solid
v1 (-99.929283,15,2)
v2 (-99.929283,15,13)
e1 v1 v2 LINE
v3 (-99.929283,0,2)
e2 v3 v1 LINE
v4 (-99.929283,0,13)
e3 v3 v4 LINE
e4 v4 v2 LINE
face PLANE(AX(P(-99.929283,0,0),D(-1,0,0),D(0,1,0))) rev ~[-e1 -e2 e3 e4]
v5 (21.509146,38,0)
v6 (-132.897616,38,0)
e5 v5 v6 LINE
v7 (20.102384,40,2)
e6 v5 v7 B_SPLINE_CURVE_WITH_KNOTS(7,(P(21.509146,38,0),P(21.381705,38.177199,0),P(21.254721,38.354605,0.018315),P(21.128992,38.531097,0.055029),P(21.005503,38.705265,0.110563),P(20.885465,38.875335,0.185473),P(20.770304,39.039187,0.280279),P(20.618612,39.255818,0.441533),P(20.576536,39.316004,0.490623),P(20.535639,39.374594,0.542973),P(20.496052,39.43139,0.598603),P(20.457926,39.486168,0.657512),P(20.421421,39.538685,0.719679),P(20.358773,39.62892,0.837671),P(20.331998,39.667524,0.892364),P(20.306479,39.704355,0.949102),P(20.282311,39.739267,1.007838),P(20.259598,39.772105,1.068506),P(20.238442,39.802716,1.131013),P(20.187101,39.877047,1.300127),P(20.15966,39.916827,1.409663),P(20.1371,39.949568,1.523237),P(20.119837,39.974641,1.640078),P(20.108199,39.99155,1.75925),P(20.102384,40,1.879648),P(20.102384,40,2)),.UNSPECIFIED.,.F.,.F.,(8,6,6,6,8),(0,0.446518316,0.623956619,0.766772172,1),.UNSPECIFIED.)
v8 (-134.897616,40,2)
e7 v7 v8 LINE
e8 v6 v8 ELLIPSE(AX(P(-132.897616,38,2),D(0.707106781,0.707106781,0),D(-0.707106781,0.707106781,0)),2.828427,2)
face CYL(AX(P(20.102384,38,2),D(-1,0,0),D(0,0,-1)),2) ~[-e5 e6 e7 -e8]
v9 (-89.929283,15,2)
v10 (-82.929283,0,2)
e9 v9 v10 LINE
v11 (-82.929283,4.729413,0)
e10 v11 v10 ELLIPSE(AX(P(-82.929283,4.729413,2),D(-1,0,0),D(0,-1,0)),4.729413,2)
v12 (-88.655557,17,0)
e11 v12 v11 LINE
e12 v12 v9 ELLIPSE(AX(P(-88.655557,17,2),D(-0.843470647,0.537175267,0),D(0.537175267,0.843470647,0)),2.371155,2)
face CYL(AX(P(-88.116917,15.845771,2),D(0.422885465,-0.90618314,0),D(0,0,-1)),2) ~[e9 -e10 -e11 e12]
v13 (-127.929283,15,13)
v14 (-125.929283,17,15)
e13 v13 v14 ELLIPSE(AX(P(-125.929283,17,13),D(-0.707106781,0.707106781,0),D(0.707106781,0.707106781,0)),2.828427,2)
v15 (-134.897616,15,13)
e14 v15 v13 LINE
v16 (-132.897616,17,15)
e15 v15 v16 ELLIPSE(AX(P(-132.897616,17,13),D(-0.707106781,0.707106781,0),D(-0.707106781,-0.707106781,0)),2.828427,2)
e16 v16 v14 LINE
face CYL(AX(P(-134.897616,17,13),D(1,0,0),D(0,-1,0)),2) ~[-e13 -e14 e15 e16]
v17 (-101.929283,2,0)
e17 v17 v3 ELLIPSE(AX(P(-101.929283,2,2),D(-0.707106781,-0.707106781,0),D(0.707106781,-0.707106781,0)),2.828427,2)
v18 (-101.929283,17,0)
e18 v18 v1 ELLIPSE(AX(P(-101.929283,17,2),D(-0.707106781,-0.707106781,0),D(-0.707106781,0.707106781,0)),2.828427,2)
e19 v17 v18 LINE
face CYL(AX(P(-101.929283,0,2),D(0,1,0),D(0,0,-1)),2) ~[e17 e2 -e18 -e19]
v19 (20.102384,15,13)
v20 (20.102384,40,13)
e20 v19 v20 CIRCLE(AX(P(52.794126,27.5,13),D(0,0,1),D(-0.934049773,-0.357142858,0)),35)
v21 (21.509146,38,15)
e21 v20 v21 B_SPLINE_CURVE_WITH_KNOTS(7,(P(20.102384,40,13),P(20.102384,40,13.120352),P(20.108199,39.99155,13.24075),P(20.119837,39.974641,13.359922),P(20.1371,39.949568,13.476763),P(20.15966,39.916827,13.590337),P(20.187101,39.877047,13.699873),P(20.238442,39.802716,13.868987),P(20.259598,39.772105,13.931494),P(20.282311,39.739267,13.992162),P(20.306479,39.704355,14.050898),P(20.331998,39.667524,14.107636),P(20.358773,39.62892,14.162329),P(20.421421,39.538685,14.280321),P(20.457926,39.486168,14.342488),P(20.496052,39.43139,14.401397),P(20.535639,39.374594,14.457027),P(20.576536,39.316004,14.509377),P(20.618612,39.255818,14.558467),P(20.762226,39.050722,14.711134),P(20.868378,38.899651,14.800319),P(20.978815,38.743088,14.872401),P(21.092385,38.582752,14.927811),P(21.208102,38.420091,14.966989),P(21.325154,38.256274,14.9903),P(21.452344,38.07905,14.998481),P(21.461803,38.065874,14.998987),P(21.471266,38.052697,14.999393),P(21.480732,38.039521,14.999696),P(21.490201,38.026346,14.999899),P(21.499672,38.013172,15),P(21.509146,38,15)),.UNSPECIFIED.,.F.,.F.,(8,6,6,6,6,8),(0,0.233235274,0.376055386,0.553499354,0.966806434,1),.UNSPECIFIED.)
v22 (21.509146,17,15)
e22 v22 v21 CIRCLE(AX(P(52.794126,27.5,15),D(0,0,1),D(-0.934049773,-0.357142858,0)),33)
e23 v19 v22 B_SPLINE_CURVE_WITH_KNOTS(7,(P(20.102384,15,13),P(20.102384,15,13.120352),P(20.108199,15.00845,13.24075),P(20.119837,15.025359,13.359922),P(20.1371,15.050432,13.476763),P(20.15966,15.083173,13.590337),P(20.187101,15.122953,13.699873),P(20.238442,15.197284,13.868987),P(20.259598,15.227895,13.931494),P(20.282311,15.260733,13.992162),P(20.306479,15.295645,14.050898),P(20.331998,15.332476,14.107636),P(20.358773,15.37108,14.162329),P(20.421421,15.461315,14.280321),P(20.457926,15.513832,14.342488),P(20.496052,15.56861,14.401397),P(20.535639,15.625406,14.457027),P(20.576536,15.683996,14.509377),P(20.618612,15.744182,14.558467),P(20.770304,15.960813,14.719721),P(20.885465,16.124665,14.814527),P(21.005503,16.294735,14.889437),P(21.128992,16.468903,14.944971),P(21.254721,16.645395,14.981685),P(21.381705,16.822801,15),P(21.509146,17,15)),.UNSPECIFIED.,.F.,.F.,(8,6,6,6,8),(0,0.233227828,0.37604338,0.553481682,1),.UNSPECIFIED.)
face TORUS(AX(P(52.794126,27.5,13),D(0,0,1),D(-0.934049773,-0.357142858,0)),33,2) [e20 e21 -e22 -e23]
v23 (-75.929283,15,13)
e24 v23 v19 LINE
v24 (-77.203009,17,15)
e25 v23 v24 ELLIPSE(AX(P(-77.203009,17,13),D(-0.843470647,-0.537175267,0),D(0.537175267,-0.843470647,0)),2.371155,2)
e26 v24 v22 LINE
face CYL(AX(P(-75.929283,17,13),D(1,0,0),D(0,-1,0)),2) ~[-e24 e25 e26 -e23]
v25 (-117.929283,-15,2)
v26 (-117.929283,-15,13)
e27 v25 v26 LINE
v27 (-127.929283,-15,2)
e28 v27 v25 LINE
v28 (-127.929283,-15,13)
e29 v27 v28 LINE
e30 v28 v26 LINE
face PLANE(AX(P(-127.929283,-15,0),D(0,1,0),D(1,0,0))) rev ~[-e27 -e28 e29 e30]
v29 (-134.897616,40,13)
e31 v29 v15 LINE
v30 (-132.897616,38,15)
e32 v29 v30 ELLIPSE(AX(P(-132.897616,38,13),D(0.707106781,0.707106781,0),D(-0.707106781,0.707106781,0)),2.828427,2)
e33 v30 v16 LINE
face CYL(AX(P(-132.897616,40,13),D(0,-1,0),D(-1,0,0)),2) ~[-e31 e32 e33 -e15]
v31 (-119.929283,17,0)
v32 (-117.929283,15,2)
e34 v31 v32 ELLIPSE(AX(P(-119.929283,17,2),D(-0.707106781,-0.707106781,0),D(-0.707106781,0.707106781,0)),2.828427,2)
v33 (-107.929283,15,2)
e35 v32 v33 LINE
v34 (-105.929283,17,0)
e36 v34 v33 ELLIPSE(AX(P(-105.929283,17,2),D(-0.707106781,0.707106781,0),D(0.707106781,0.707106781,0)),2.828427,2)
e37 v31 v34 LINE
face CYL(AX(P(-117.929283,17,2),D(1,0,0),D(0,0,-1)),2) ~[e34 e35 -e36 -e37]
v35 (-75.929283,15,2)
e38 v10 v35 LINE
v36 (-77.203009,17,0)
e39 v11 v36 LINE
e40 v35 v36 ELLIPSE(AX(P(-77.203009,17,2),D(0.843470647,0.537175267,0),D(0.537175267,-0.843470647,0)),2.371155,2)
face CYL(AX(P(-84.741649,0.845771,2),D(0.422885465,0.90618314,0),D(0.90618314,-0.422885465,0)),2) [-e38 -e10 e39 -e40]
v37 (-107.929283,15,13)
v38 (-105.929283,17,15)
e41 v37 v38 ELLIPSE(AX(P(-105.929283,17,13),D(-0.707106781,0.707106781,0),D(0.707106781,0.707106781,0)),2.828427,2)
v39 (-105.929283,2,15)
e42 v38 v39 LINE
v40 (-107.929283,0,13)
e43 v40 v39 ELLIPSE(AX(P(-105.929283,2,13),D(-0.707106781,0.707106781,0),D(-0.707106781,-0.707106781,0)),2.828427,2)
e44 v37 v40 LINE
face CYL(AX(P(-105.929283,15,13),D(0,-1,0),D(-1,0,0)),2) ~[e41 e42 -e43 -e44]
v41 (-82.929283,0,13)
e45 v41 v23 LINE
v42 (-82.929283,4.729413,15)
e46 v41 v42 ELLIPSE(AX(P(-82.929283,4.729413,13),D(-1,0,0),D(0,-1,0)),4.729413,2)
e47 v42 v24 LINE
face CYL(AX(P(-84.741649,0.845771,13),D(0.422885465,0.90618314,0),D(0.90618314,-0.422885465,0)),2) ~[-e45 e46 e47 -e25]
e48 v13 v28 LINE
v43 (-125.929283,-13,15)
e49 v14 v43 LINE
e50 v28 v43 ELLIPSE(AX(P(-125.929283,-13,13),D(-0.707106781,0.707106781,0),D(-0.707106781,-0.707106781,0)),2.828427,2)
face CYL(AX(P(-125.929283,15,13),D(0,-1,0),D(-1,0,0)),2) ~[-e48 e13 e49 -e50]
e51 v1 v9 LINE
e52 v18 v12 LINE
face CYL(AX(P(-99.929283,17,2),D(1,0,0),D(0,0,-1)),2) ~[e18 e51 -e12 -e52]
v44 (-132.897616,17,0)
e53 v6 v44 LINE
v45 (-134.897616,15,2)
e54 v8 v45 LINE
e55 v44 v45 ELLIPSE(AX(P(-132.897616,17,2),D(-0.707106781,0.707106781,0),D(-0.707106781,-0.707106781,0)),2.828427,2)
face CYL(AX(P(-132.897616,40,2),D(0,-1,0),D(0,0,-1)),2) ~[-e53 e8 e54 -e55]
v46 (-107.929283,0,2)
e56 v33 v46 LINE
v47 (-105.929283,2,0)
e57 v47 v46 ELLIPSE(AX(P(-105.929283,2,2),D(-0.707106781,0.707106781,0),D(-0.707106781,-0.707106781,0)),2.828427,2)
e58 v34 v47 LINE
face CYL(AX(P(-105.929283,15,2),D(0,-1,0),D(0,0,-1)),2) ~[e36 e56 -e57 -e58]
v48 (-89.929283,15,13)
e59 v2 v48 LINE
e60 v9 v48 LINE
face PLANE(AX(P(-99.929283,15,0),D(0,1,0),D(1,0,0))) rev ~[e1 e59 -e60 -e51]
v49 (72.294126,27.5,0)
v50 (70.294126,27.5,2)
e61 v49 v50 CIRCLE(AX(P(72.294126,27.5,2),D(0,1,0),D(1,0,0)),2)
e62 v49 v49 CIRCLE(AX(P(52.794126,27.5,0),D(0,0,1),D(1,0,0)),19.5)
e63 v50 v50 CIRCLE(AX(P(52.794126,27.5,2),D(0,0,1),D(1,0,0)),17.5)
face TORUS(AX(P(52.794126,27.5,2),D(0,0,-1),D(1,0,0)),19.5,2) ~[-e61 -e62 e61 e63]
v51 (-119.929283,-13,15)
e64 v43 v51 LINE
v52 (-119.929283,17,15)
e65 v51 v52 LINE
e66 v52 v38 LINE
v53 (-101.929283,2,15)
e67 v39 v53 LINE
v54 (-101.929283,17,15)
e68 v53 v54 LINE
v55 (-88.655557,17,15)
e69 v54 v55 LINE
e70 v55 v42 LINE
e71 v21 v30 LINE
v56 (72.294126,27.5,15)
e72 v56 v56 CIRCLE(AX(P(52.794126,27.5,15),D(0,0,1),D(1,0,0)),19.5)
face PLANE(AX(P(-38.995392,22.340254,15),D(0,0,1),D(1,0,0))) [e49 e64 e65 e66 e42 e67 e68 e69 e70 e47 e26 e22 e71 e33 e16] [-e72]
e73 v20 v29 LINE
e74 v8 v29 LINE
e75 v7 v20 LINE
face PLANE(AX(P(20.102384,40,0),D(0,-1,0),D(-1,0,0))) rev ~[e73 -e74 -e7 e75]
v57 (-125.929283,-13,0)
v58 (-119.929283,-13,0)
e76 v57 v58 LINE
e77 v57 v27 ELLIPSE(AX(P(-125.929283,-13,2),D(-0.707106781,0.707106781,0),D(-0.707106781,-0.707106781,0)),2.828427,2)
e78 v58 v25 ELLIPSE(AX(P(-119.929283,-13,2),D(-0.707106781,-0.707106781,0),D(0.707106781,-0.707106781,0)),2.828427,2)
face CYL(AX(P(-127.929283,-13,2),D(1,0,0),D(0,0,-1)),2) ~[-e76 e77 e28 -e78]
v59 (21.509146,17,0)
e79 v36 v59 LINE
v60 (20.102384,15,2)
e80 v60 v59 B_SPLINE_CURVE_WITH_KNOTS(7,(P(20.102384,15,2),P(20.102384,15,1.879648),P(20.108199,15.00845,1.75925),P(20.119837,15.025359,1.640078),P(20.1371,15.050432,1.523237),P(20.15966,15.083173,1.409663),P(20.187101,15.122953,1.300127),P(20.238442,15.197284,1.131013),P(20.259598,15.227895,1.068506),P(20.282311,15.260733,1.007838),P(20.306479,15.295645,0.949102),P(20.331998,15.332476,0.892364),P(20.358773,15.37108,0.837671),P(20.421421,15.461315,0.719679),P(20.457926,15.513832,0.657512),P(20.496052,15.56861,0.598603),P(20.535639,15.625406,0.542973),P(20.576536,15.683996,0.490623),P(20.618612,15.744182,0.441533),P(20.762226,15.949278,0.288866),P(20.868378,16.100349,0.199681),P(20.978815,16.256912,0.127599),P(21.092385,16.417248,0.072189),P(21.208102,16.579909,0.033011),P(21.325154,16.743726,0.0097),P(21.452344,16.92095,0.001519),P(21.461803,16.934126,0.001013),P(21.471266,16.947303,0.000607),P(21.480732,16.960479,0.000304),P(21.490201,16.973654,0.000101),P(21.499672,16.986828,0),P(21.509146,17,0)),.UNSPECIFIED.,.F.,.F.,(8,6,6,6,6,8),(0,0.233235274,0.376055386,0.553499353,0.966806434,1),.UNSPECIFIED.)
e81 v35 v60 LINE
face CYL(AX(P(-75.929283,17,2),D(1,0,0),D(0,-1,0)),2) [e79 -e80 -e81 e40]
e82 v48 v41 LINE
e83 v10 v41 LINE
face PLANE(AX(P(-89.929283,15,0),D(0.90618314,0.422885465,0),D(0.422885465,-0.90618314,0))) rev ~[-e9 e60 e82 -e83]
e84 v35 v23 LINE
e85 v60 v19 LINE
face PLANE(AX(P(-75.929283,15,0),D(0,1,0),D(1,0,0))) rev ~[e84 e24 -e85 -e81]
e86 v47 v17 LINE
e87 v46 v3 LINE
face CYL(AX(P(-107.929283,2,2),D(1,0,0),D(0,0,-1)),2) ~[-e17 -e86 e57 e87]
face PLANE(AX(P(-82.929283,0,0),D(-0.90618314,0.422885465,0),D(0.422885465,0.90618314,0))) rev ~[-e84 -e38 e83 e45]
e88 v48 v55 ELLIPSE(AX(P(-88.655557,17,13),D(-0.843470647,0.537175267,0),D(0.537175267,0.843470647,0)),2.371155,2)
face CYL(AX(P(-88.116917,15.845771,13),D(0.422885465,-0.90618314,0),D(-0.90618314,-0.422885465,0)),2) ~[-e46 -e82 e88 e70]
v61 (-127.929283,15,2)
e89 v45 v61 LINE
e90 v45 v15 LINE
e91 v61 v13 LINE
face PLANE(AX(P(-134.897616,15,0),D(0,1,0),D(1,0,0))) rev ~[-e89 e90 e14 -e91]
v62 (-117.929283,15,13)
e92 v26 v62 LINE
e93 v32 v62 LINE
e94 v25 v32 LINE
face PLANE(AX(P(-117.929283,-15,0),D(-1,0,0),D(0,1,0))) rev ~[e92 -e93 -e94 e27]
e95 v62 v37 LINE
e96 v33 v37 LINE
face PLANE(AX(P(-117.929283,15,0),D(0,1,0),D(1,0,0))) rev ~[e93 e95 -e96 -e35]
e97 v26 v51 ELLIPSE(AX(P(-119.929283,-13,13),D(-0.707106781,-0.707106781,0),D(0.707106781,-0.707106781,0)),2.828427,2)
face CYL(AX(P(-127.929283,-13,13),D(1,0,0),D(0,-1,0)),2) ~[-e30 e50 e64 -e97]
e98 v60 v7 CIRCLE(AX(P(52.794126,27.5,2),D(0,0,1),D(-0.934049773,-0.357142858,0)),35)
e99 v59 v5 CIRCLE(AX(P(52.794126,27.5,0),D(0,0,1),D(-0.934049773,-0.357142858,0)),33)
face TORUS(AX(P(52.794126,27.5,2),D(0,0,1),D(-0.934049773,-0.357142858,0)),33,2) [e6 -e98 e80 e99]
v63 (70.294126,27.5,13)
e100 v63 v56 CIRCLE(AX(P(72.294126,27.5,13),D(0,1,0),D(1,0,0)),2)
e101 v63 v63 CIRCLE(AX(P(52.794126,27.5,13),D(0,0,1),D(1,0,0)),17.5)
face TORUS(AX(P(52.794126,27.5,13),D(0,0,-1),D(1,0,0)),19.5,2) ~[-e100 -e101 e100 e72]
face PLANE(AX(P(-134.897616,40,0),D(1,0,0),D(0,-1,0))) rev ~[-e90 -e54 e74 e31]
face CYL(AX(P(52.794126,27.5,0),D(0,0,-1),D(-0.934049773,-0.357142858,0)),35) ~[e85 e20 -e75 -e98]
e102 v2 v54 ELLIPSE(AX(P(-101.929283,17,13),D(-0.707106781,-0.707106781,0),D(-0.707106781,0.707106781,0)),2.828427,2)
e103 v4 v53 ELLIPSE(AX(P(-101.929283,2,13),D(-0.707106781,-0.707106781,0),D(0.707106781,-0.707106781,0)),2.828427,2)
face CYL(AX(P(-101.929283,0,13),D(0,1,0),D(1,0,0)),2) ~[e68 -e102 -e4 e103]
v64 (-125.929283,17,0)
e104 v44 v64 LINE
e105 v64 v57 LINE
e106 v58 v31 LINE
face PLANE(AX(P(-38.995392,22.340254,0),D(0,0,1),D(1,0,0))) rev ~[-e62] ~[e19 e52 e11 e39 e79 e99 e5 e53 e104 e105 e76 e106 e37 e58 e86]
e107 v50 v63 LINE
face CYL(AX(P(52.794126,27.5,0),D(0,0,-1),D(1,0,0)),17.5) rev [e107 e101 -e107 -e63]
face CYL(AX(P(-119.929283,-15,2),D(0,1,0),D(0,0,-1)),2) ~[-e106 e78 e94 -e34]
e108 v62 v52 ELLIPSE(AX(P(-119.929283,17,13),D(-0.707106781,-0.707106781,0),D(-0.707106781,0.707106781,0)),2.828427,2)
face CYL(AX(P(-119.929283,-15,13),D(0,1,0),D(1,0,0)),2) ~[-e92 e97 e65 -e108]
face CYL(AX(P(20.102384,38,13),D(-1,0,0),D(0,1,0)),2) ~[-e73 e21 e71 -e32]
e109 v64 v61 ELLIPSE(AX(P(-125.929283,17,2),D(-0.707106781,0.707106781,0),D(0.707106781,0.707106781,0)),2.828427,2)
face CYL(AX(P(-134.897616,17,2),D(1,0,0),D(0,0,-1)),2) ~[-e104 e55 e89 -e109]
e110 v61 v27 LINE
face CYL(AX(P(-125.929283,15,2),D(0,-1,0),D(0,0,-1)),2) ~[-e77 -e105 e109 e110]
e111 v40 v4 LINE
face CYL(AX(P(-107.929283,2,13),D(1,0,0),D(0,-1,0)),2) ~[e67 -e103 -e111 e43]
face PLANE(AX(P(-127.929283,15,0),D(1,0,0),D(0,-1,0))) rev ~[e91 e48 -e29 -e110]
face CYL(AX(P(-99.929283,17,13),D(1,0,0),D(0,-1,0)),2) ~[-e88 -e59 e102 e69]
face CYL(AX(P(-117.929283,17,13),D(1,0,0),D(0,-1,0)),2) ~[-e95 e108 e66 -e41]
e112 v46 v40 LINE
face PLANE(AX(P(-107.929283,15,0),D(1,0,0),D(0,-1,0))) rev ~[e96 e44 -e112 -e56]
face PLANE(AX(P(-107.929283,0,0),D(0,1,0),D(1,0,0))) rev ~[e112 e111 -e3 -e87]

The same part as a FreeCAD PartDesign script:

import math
import FreeCAD as App
import Part
import Sketcher
from FreeCAD import Vector
Q = App.Units.Quantity


def edges_at(feature, points):
    """Names of the edges that pass closest to the given points."""
    edges = feature.Shape.Edges
    near = lambda p: min(range(len(edges)), key=lambda i: edges[i].distToShape(Part.Vertex(*p))[0])
    return sorted({f"Edge{near(p) + 1}" for p in points})

doc = App.newDocument("Part")
body = doc.addObject("PartDesign::Body", "Body")

sketch1 = doc.addObject("Sketcher::SketchObject", "Sketch")
body.addObject(sketch1)
sketch1.AttachmentSupport = (doc.XY_Plane, [""])
sketch1.MapMode = "FlatFace"
sketch1.addGeometry([
    Part.LineSegment(Vector(-75.929283, 15, 0), Vector(20.102384, 15, 0)),
    Part.ArcOfCircle(Part.Circle(Vector(52.794126, 27.5, 0), Vector(0, 0, 1), 35), math.radians(-159.075168), math.radians(159.075168)),
    Part.LineSegment(Vector(20.102384, 40, 0), Vector(-134.897616, 40, 0)),
    Part.LineSegment(Vector(-134.897616, 40, 0), Vector(-134.897616, 15, 0)),
    Part.LineSegment(Vector(-134.897616, 15, 0), Vector(-127.929283, 15, 0)),
    Part.LineSegment(Vector(-127.929283, 15, 0), Vector(-127.929283, -15, 0)),
    Part.LineSegment(Vector(-127.929283, -15, 0), Vector(-117.929283, -15, 0)),
    Part.LineSegment(Vector(-117.929283, -15, 0), Vector(-117.929283, 15, 0)),
    Part.LineSegment(Vector(-117.929283, 15, 0), Vector(-107.929283, 15, 0)),
    Part.LineSegment(Vector(-107.929283, 15, 0), Vector(-107.929283, 0, 0)),
    Part.LineSegment(Vector(-107.929283, 0, 0), Vector(-99.929283, 0, 0)),
    Part.LineSegment(Vector(-99.929283, 0, 0), Vector(-99.929283, 15, 0)),
    Part.LineSegment(Vector(-99.929283, 15, 0), Vector(-89.929283, 15, 0)),
    Part.LineSegment(Vector(-89.929283, 15, 0), Vector(-82.929283, 0, 0)),
    Part.LineSegment(Vector(-82.929283, 0, 0), Vector(-75.929283, 15, 0)),
    Part.Circle(Vector(52.794126, 27.5, 0), Vector(0, 0, 1), 17.5),
], False)
sketch1.addConstraint([
    Sketcher.Constraint("Coincident", 0, 2, 1, 1),
    Sketcher.Constraint("Coincident", 1, 2, 2, 1),
    Sketcher.Constraint("Coincident", 2, 2, 3, 1),
    Sketcher.Constraint("Coincident", 3, 2, 4, 1),
    Sketcher.Constraint("Coincident", 4, 2, 5, 1),
    Sketcher.Constraint("Coincident", 5, 2, 6, 1),
    Sketcher.Constraint("Coincident", 6, 2, 7, 1),
    Sketcher.Constraint("Coincident", 7, 2, 8, 1),
    Sketcher.Constraint("Coincident", 8, 2, 9, 1),
    Sketcher.Constraint("Coincident", 9, 2, 10, 1),
    Sketcher.Constraint("Coincident", 10, 2, 11, 1),
    Sketcher.Constraint("Coincident", 11, 2, 12, 1),
    Sketcher.Constraint("Coincident", 12, 2, 13, 1),
    Sketcher.Constraint("Coincident", 13, 2, 14, 1),
    Sketcher.Constraint("Coincident", 14, 2, 0, 1),
    Sketcher.Constraint("Horizontal", 0),
    Sketcher.Constraint("Horizontal", 2),
    Sketcher.Constraint("Vertical", 3),
    Sketcher.Constraint("Horizontal", 4),
    Sketcher.Constraint("Vertical", 5),
    Sketcher.Constraint("Horizontal", 6),
    Sketcher.Constraint("Vertical", 7),
    Sketcher.Constraint("Horizontal", 8),
    Sketcher.Constraint("Vertical", 9),
    Sketcher.Constraint("Horizontal", 10),
    Sketcher.Constraint("Vertical", 11),
    Sketcher.Constraint("Horizontal", 12),
    Sketcher.Constraint("Coincident", 15, 3, 1, 3),
    Sketcher.Constraint("PointOnObject", 9, 2, -1),
    Sketcher.Constraint("PointOnObject", 13, 2, -1),
    Sketcher.Constraint("Horizontal", 0, 2, 3, 2),
    Sketcher.Constraint("Horizontal", 4, 2, 7, 2),
    Sketcher.Constraint("Horizontal", 8, 2, 11, 2),
    Sketcher.Constraint("Vertical", 0, 2, 1, 2),
    Sketcher.Constraint("Equal", 6, 8),
    Sketcher.Constraint("Equal", 8, 12),
    Sketcher.Constraint("Equal", 13, 14),
    Sketcher.Constraint("Diameter", 15, Q("35 mm")),
    Sketcher.Constraint("Radius", 1, Q("35 mm")),
    Sketcher.Constraint("DistanceX", 2, 2, 2, 1, Q("155 mm")),
    Sketcher.Constraint("DistanceX", 6, 1, 6, 2, Q("10 mm")),
    Sketcher.Constraint("DistanceX", 10, 1, 10, 2, Q("8 mm")),
    Sketcher.Constraint("DistanceY", 3, 2, 3, 1, Q("25 mm")),
    Sketcher.Constraint("DistanceY", 5, 2, 5, 1, Q("30 mm")),
    Sketcher.Constraint("DistanceY", 9, 2, 9, 1, Q("15 mm")),
    Sketcher.Constraint("DistanceX", 12, 2, 13, 2, Q("7 mm")),
    Sketcher.Constraint("DistanceX", 0, 1, 0, 2, Q("96.031667 mm")),
    Sketcher.Constraint("DistanceX", -1, 1, 1, 3, Q("52.794126 mm")),
])
pad1 = doc.addObject("PartDesign::Pad", "Pad")
body.addObject(pad1)
pad1.Profile = sketch1
pad1.Length = 15
doc.recompute()

fillet = doc.addObject("PartDesign::Fillet", "Fillet")
body.addObject(fillet)
fillet.Base = (pad1, edges_at(pad1, [
    (-27.913, 15, 15),
    (87.794, 27.5, 15),
    (-57.398, 40, 15),
    (-134.898, 27.5, 15),
    (-131.413, 15, 15),
    (-127.929, 0, 15),
    (-122.929, -15, 15),
    (-117.929, 0, 15),
    (-112.929, 15, 15),
    (-107.929, 7.5, 15),
    (-103.929, 0, 15),
    (-99.929, 7.5, 15),
    (-94.929, 15, 15),
    (-86.429, 7.5, 15),
    (-79.429, 7.5, 15),
    (35.294, 27.5, 15),
]))
fillet.Radius = 2
doc.recompute()

fillet2 = doc.addObject("PartDesign::Fillet", "Fillet001")
body.addObject(fillet2)
fillet2.Base = (fillet, edges_at(fillet, [
    (-27.913, 15, 0),
    (87.794, 27.5, 0),
    (-57.398, 40, 0),
    (-134.898, 27.5, 0),
    (-131.413, 15, 0),
    (-127.929, 0, 0),
    (-122.929, -15, 0),
    (-117.929, 0, 0),
    (-112.929, 15, 0),
    (-107.929, 7.5, 0),
    (-103.929, 0, 0),
    (-99.929, 7.5, 0),
    (-94.929, 15, 0),
    (-86.429, 7.5, 0),
    (-79.429, 7.5, 0),
    (35.294, 27.5, 0),
]))
fillet2.Radius = 2

doc.recompute()
